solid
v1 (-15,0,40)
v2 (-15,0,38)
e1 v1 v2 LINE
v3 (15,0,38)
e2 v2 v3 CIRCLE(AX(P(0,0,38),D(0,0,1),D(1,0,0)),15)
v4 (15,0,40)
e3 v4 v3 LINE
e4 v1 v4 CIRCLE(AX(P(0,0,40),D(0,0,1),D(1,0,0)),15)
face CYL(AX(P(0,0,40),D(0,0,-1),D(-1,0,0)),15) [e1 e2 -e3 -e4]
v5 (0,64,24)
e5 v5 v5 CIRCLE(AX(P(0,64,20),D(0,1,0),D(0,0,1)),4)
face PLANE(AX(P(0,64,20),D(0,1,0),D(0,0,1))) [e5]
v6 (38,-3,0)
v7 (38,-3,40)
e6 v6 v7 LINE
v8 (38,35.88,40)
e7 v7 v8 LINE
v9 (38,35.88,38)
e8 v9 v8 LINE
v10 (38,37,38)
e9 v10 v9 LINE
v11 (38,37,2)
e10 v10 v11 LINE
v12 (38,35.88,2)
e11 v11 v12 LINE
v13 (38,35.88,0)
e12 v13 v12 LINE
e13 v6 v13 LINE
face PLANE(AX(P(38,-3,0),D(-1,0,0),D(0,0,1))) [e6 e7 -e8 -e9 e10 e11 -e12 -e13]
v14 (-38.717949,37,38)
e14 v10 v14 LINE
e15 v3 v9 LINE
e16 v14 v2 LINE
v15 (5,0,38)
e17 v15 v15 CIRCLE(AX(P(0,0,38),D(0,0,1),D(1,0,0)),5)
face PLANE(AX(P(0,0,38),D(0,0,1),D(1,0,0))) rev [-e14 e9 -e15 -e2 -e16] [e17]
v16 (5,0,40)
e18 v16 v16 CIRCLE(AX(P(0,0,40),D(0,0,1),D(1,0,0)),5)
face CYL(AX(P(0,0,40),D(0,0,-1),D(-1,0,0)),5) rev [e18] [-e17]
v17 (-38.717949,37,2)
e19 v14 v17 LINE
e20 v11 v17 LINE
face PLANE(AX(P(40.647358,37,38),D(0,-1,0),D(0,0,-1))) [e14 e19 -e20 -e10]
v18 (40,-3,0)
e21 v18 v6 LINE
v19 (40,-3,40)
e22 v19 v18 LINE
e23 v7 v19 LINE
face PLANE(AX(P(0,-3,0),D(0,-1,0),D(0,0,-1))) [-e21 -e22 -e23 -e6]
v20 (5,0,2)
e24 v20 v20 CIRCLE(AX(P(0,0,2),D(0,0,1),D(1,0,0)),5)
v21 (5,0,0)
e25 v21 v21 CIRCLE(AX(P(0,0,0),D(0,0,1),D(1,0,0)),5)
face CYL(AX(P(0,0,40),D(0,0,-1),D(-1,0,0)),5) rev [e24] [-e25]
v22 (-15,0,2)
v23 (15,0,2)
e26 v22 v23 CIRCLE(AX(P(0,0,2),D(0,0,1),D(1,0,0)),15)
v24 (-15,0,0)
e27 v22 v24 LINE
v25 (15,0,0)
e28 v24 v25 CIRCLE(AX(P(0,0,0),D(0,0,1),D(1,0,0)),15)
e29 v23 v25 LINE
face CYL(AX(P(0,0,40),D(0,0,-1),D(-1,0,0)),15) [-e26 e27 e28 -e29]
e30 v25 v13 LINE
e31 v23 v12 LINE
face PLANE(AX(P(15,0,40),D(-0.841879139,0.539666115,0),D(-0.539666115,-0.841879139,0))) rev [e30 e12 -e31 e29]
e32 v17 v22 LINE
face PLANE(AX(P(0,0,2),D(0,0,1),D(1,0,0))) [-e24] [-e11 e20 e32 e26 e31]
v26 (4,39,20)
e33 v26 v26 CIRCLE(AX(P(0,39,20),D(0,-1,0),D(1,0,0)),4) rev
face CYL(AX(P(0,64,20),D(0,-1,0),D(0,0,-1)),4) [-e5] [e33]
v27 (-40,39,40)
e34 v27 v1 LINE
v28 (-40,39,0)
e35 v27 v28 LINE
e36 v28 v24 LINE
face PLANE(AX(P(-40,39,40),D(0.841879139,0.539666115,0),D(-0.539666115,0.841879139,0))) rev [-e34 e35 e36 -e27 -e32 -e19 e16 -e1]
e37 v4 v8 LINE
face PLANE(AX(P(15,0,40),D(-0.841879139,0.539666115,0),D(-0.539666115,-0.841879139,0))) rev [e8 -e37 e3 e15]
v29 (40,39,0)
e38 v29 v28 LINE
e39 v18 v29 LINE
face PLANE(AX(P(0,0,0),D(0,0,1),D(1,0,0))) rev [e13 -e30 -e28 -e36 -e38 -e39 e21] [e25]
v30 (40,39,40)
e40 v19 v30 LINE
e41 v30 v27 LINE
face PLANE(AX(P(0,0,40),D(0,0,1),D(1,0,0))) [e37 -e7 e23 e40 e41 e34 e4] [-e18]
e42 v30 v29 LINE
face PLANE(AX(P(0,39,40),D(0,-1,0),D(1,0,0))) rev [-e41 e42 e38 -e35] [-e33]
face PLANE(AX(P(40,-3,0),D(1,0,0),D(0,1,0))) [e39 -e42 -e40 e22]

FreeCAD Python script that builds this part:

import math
import FreeCAD as App
import Part
import Sketcher


def add_polygon(sketch, points):
    """Adds a closed chain of lines whose ends are joined by coincident constraints."""
    first, n = sketch.GeometryCount, len(points)
    for a, b in zip(points, points[1:] + points[:1]):
        sketch.addGeometry(Part.LineSegment(App.Vector(*a, 0), App.Vector(*b, 0)), False)
    for i in range(n):
        sketch.addConstraint(Sketcher.Constraint("Coincident", first + i, 2, first + (i + 1) % n, 1))

doc = App.newDocument("Part")
params = doc.addObject("Spreadsheet::Sheet", "Params")
for row, (alias, value) in enumerate([
    ("sketch1_diameter", "10 mm"),
    ("sketch1_radius", "15 mm"),
    ("sketch1_width", "80 mm"),
    ("pad1_length", "40 mm"),
    ("sketch2_height", "74 mm"),
    ("pocket1_length", "18 mm"),
    ("pocket1_length2", "18 mm"),
    ("sketch3_diameter", "8 mm"),
    ("pad2_length", "25 mm"),
    ("sketch4_width", "2 mm"),
    ("sketch4_height", "40 mm"),
    ("pad3_length", "42 mm"),
], start=1):
    params.set(f"A{row}", alias)
    params.set(f"B{row}", "=" + value)
    params.setAlias(f"B{row}", alias)

body = doc.addObject("PartDesign::Body", "Body")

sketch1 = doc.addObject("Sketcher::SketchObject", "Sketch")
body.addObject(sketch1)
sketch1.AttachmentSupport = (doc.XY_Plane, [""])
sketch1.MapMode = "FlatFace"
sketch1.addGeometry(Part.LineSegment(App.Vector(-40, 39, 0), App.Vector(-15, 0, 0)), False)
sketch1.addGeometry(Part.ArcOfCircle(Part.Circle(App.Vector(0, 0, 0), App.Vector(0, 0, 1), 15), math.radians(180), math.radians(360)), False)
sketch1.addGeometry(Part.LineSegment(App.Vector(15, 0, 0), App.Vector(40, 39, 0)), False)
sketch1.addGeometry(Part.LineSegment(App.Vector(40, 39, 0), App.Vector(-40, 39, 0)), False)
sketch1.addGeometry(Part.Circle(App.Vector(0, 0, 0), App.Vector(0, 0, 1), 5), False)
sketch1.addConstraint(Sketcher.Constraint("Coincident", 0, 2, 1, 1))
sketch1.addConstraint(Sketcher.Constraint("Coincident", 1, 2, 2, 1))
sketch1.addConstraint(Sketcher.Constraint("Coincident", 2, 2, 3, 1))
sketch1.addConstraint(Sketcher.Constraint("Coincident", 3, 2, 0, 1))
sketch1.addConstraint(Sketcher.Constraint("Horizontal", 3))
sketch1.addConstraint(Sketcher.Constraint("Coincident", 1, 3, -1, 1))
sketch1.addConstraint(Sketcher.Constraint("Coincident", 4, 3, -1, 1))
sketch1.addConstraint(Sketcher.Constraint("PointOnObject", 0, 2, -1))
sketch1.addConstraint(Sketcher.Constraint("PointOnObject", 1, 2, -1))
sketch1.addConstraint(Sketcher.Constraint("Equal", 0, 2))
sketch1.addConstraint(Sketcher.Constraint("Diameter", 4, 10.0))
sketch1.addConstraint(Sketcher.Constraint("Radius", 1, 15.0))
sketch1.addConstraint(Sketcher.Constraint("DistanceX", 3, 2, 3, 1, 80.0))
sketch1.addConstraint(Sketcher.Constraint("DistanceY", -1, 1, 2, 2, 39.0))
sketch1.setExpression("Constraints[10]", "Params.sketch1_diameter")
sketch1.setExpression("Constraints[11]", "Params.sketch1_radius")
sketch1.setExpression("Constraints[12]", "Params.sketch1_width")
pad1 = doc.addObject("PartDesign::Pad", "Pad")
body.addObject(pad1)
pad1.Profile = sketch1
pad1.setExpression("Length", "Params.pad1_length")

sketch2 = doc.addObject("Sketcher::SketchObject", "Sketch001")
body.addObject(sketch2)
sketch2.AttachmentSupport = (doc.XY_Plane, [""])
sketch2.MapMode = "FlatFace"
sketch2.AttachmentOffset = App.Placement(App.Vector(0, 0, 20), App.Rotation())
add_polygon(sketch2, [(-40.647358, 37), (-40.647358, -37), (40.647358, -37), (40.647358, 37)])
sketch2.addConstraint(Sketcher.Constraint("Vertical", 0))
sketch2.addConstraint(Sketcher.Constraint("Horizontal", 1))
sketch2.addConstraint(Sketcher.Constraint("Vertical", 2))
sketch2.addConstraint(Sketcher.Constraint("Horizontal", 3))
sketch2.addConstraint(Sketcher.Constraint("Symmetric", 0, 2, 2, 2, -1, 1))
sketch2.addConstraint(Sketcher.Constraint("DistanceY", 0, 2, 0, 1, 74.0))
sketch2.addConstraint(Sketcher.Constraint("DistanceX", 1, 1, 1, 2, 81.294716))
sketch2.setExpression("Constraints[9]", "Params.sketch2_height")
pocket1 = doc.addObject("PartDesign::Pocket", "Pocket")
body.addObject(pocket1)
pocket1.Profile = sketch2
pocket1.Type = "TwoLengths"
pocket1.setExpression("Length", "Params.pocket1_length")
pocket1.setExpression("Length2", "Params.pocket1_length2")
pocket1.Reversed = True

sketch3 = doc.addObject("Sketcher::SketchObject", "Sketch002")
body.addObject(sketch3)
sketch3.AttachmentSupport = (doc.XZ_Plane, [""])
sketch3.MapMode = "FlatFace"
sketch3.AttachmentOffset = App.Placement(App.Vector(0, 0, -39), App.Rotation())
sketch3.addGeometry(Part.Circle(App.Vector(0, 20, 0), App.Vector(0, 0, 1), 4), False)
sketch3.addConstraint(Sketcher.Constraint("PointOnObject", 0, 3, -2))
sketch3.addConstraint(Sketcher.Constraint("Diameter", 0, 8.0))
sketch3.addConstraint(Sketcher.Constraint("DistanceY", -1, 1, 0, 3, 20.0))
sketch3.setExpression("Constraints[1]", "Params.sketch3_diameter")
pad2 = doc.addObject("PartDesign::Pad", "Pad001")
body.addObject(pad2)
pad2.Profile = sketch3
pad2.setExpression("Length", "Params.pad2_length")
pad2.Reversed = True

sketch4 = doc.addObject("Sketcher::SketchObject", "Sketch003")
body.addObject(sketch4)
sketch4.AttachmentSupport = (doc.XZ_Plane, [""])
sketch4.MapMode = "FlatFace"
sketch4.AttachmentOffset = App.Placement(App.Vector(0, 0, -39), App.Rotation())
add_polygon(sketch4, [(38, 0), (38, 40), (40, 40), (40, 0)])
sketch4.addConstraint(Sketcher.Constraint("Vertical", 0))
sketch4.addConstraint(Sketcher.Constraint("Horizontal", 1))
sketch4.addConstraint(Sketcher.Constraint("Vertical", 2))
sketch4.addConstraint(Sketcher.Constraint("Horizontal", 3))
sketch4.addConstraint(Sketcher.Constraint("PointOnObject", 2, 2, -1))
sketch4.addConstraint(Sketcher.Constraint("DistanceX", 1, 1, 1, 2, 2.0))
sketch4.addConstraint(Sketcher.Constraint("DistanceY", 0, 1, 0, 2, 40.0))
sketch4.addConstraint(Sketcher.Constraint("DistanceX", -1, 1, 0, 2, 38.0))
sketch4.setExpression("Constraints[9]", "Params.sketch4_width")
sketch4.setExpression("Constraints[10]", "Params.sketch4_height")
pad3 = doc.addObject("PartDesign::Pad", "Pad002")
body.addObject(pad3)
pad3.Profile = sketch4
pad3.setExpression("Length", "Params.pad3_length")

doc.recompute()
